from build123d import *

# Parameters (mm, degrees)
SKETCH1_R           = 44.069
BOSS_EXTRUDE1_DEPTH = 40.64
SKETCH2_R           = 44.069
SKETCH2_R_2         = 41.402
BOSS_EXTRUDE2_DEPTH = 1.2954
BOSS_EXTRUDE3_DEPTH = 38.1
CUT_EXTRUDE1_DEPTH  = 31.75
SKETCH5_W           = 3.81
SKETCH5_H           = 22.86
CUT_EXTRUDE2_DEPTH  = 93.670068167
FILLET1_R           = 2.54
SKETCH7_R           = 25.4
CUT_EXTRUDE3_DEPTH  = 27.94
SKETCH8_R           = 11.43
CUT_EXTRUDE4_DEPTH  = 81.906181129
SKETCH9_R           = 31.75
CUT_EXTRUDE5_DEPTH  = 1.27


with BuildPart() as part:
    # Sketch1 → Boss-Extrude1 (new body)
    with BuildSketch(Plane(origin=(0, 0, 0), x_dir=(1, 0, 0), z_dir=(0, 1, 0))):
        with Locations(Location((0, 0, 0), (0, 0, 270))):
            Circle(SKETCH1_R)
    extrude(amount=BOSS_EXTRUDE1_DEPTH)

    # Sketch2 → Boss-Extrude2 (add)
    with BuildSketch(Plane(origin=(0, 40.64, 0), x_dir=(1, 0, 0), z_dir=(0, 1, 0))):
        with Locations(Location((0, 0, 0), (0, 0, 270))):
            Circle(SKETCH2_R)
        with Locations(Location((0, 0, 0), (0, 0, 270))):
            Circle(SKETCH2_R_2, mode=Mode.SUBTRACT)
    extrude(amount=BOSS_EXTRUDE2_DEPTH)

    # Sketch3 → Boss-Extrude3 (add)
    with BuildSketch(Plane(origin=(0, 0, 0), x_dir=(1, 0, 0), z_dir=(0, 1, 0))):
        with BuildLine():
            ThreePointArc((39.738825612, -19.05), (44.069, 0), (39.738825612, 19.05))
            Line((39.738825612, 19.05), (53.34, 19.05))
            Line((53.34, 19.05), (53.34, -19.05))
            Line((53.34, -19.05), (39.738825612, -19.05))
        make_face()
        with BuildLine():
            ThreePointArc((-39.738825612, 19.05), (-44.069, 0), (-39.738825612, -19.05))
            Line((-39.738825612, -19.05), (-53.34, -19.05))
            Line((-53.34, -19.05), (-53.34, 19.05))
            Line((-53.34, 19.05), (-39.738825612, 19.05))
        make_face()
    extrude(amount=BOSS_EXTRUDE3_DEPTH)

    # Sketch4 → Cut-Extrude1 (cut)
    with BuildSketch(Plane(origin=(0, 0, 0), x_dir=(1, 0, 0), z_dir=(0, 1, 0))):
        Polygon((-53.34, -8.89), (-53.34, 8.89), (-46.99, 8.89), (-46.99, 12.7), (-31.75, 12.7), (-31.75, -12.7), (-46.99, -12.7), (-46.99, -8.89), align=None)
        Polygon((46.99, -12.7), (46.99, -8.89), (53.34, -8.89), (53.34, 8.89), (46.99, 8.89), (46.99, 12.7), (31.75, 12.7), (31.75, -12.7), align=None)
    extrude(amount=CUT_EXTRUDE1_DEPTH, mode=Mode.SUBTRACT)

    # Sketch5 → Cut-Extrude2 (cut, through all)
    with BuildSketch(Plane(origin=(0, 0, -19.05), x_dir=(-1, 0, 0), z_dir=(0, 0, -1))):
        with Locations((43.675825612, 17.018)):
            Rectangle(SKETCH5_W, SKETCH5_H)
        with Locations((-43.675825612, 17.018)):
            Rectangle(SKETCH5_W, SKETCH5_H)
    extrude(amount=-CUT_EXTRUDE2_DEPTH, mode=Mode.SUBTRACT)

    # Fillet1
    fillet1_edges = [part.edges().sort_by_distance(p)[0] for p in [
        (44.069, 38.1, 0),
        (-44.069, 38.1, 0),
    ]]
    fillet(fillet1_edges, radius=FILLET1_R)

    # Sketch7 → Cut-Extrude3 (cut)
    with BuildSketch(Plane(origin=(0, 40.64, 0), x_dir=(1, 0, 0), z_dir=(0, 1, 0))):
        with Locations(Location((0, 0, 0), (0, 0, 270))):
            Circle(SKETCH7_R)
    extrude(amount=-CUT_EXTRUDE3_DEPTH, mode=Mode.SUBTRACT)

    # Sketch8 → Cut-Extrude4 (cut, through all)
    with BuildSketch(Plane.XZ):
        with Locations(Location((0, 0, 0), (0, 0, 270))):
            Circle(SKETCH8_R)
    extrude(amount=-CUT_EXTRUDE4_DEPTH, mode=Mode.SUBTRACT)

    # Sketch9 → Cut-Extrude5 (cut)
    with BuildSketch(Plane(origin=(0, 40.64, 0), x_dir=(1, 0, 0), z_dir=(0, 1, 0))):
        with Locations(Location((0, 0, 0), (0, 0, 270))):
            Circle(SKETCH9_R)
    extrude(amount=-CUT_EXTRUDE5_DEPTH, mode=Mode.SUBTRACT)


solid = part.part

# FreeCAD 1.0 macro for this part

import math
import FreeCAD as App
import Part
import Sketcher
Q = App.Units.Quantity


def edges_at(feature, points):
    """Names of the edges that pass closest to the given points."""
    edges = feature.Shape.Edges
    near = lambda p: min(range(len(edges)), key=lambda i: edges[i].distToShape(Part.Vertex(*p))[0])
    return sorted({f"Edge{near(p) + 1}" for p in points})


def add_polygon(sketch, points):
    """Adds a closed chain of lines whose ends are joined by coincident constraints."""
    first, n = sketch.GeometryCount, len(points)
    for a, b in zip(points, points[1:] + points[:1]):
        sketch.addGeometry(Part.LineSegment(App.Vector(*a, 0), App.Vector(*b, 0)), False)
    for i in range(n):
        sketch.addConstraint(Sketcher.Constraint("Coincident", first + i, 2, first + (i + 1) % n, 1))

doc = App.newDocument("Part")
body = doc.addObject("PartDesign::Body", "Body")

# Sketch on XZ plane
sketch1 = doc.addObject("Sketcher::SketchObject", "Sketch")
body.addObject(sketch1)
sketch1.AttachmentSupport = (doc.XZ_Plane, [""])
sketch1.MapMode = "FlatFace"
sketch1.addGeometry(Part.Circle(App.Vector(0, 0, 0), App.Vector(0, 0, 1), 44), False)
sketch1.addConstraint([
    Sketcher.Constraint("Coincident", 0, 3, -1, 1),
    Sketcher.Constraint("Diameter", 0, Q("3.47 in")),
])
pad1 = doc.addObject("PartDesign::Pad", "Pad")
body.addObject(pad1)
pad1.Profile = sketch1
pad1.Length = Q("1.6 in")
pad1.Reversed = True

# Sketch on XZ plane
sketch2 = doc.addObject("Sketcher::SketchObject", "Sketch001")
body.addObject(sketch2)
sketch2.AttachmentSupport = (doc.XZ_Plane, [""])
sketch2.MapMode = "FlatFace"
sketch2.AttachmentOffset = App.Placement(App.Vector(0, 0, -1.6 * 25.4), App.Rotation())
sketch2.addGeometry([
    Part.Circle(App.Vector(0, 0, 0), App.Vector(0, 0, 1), 44),
    Part.Circle(App.Vector(0, 0, 0), App.Vector(0, 0, 1), 41),
], False)
sketch2.addConstraint([
    Sketcher.Constraint("Coincident", 0, 3, -1, 1),
    Sketcher.Constraint("Coincident", 1, 3, -1, 1),
    Sketcher.Constraint("Diameter", 0, Q("3.47 in")),
    Sketcher.Constraint("Diameter", 1, Q("3.26 in")),
])
pad2 = doc.addObject("PartDesign::Pad", "Pad001")
body.addObject(pad2)
pad2.Profile = sketch2
pad2.Length = Q("0.051 in")
pad2.Reversed = True

# Sketch on XZ plane
sketch3 = doc.addObject("Sketcher::SketchObject", "Sketch002")
body.addObject(sketch3)
sketch3.AttachmentSupport = (doc.XZ_Plane, [""])
sketch3.MapMode = "FlatFace"
sketch3.addGeometry([
    Part.ArcOfCircle(Part.Circle(App.Vector(0, 0, 0), App.Vector(0, 0, 1), 44), math.radians(-26), math.radians(26)),  # 0
    Part.LineSegment(App.Vector(40, 19, 0), App.Vector(53, 19, 0)),  # 1
    Part.LineSegment(App.Vector(53, 19, 0), App.Vector(53, -19, 0)),  # 2
    Part.LineSegment(App.Vector(53, -19, 0), App.Vector(40, -19, 0)),  # 3
    Part.ArcOfCircle(Part.Circle(App.Vector(0, 0, 0), App.Vector(0, 0, 1), 44), math.radians(154), math.radians(206)),  # 4
    Part.LineSegment(App.Vector(-40, -19, 0), App.Vector(-53, -19, 0)),  # 5
    Part.LineSegment(App.Vector(-53, -19, 0), App.Vector(-53, 19, 0)),  # 6
    Part.LineSegment(App.Vector(-53, 19, 0), App.Vector(-40, 19, 0)),  # 7
], False)
sketch3.addConstraint([
    Sketcher.Constraint("Coincident", 0, 2, 1, 1),
    Sketcher.Constraint("Coincident", 1, 2, 2, 1),
    Sketcher.Constraint("Coincident", 2, 2, 3, 1),
    Sketcher.Constraint("Coincident", 3, 2, 0, 1),
    Sketcher.Constraint("Coincident", 4, 2, 5, 1),
    Sketcher.Constraint("Coincident", 5, 2, 6, 1),
    Sketcher.Constraint("Coincident", 6, 2, 7, 1),
    Sketcher.Constraint("Coincident", 7, 2, 4, 1),
    Sketcher.Constraint("Horizontal", 1),
    Sketcher.Constraint("Vertical", 2),
    Sketcher.Constraint("Horizontal", 3),
    Sketcher.Constraint("Horizontal", 5),
    Sketcher.Constraint("Vertical", 6),
    Sketcher.Constraint("Horizontal", 7),
    Sketcher.Constraint("Coincident", 0, 3, -1, 1),
    Sketcher.Constraint("Coincident", 4, 3, -1, 1),
    Sketcher.Constraint("Equal", 0, 4),
    Sketcher.Constraint("Symmetric", 1, 2, 5, 2, -1, 1),
    Sketcher.Constraint("Horizontal", 3, 2, 4, 2),
    Sketcher.Constraint("Horizontal", 1, 2, 6, 2),
    Sketcher.Constraint("DistanceY", 2, 2, 2, 1, Q("1.5 in")),
    Sketcher.Constraint("Radius", 0, Q("1.735 in")),
    Sketcher.Constraint("DistanceX", -1, 1, 1, 2, Q("2.1 in")),
])
pad3 = doc.addObject("PartDesign::Pad", "Pad002")
body.addObject(pad3)
pad3.Profile = sketch3
pad3.Length = Q("1.5 in")
pad3.Reversed = True

# Sketch on XZ plane
sketch4 = doc.addObject("Sketcher::SketchObject", "Sketch003")
body.addObject(sketch4)
sketch4.AttachmentSupport = (doc.XZ_Plane, [""])
sketch4.MapMode = "FlatFace"
add_polygon(sketch4, [(-53.3, -8.9), (-53.3, 8.9), (-47, 8.9), (-47, 12.7), (-31.8, 12.7), (-31.8, -12.7), (-47, -12.7), (-47, -8.9)])  # lines 0-7
add_polygon(sketch4, [(47, 12.7), (47, 8.9), (53.3, 8.9), (53.3, -8.9), (47, -8.9), (47, -12.7), (31.8, -12.7), (31.8, 12.7)])  # lines 8-15
sketch4.addConstraint([
    Sketcher.Constraint("Vertical", 0),
    Sketcher.Constraint("Horizontal", 1),
    Sketcher.Constraint("Vertical", 2),
    Sketcher.Constraint("Horizontal", 3),
    Sketcher.Constraint("Vertical", 4),
    Sketcher.Constraint("Horizontal", 5),
    Sketcher.Constraint("Vertical", 6),
    Sketcher.Constraint("Horizontal", 7),
    Sketcher.Constraint("Vertical", 8),
    Sketcher.Constraint("Horizontal", 9),
    Sketcher.Constraint("Vertical", 10),
    Sketcher.Constraint("Horizontal", 11),
    Sketcher.Constraint("Vertical", 12),
    Sketcher.Constraint("Horizontal", 13),
    Sketcher.Constraint("Vertical", 14),
    Sketcher.Constraint("Horizontal", 15),
    Sketcher.Constraint("Symmetric", 6, 2, 8, 2, -1, 1),
    Sketcher.Constraint("Symmetric", 0, 2, 10, 2, -1, 1),
    Sketcher.Constraint("Symmetric", 2, 2, 12, 2, -1, 1),
    Sketcher.Constraint("Symmetric", 4, 2, 14, 2, -1, 1),
    Sketcher.Constraint("Symmetric", 1, 2, 8, 2, -2),
    Sketcher.Constraint("Horizontal", 5, 2, 12, 2),
    Sketcher.Constraint("DistanceY", 4, 2, 4, 1, Q("1 in")),
    Sketcher.Constraint("DistanceX", 3, 1, 3, 2, Q("0.6 in")),
    Sketcher.Constraint("DistanceY", 0, 1, 0, 2, Q("0.7 in")),
    Sketcher.Constraint("DistanceX", 1, 1, 1, 2, Q("0.25 in")),
    Sketcher.Constraint("DistanceX", 0, 2, -1, 1, Q("2.1 in")),
])
pocket1 = doc.addObject("PartDesign::Pocket", "Pocket")
body.addObject(pocket1)
pocket1.Profile = sketch4
pocket1.Length = Q("1.25 in")

# Sketch on XY plane
sketch5 = doc.addObject("Sketcher::SketchObject", "Sketch004")
body.addObject(sketch5)
sketch5.AttachmentSupport = (doc.XY_Plane, [""])
sketch5.MapMode = "FlatFace"
sketch5.AttachmentOffset = App.Placement(App.Vector(0, 0, -0.75 * 25.4), App.Rotation())
add_polygon(sketch5, [(-41.8, 28.4), (-41.8, 5.6), (-45.6, 5.6), (-45.6, 28.4)])  # lines 0-3
add_polygon(sketch5, [(45.6, 28.4), (45.6, 5.6), (41.8, 5.6), (41.8, 28.4)])  # lines 4-7
sketch5.addConstraint([
    Sketcher.Constraint("Vertical", 0),
    Sketcher.Constraint("Horizontal", 1),
    Sketcher.Constraint("Vertical", 2),
    Sketcher.Constraint("Horizontal", 3),
    Sketcher.Constraint("Vertical", 4),
    Sketcher.Constraint("Horizontal", 5),
    Sketcher.Constraint("Vertical", 6),
    Sketcher.Constraint("Horizontal", 7),
    Sketcher.Constraint("Symmetric", 1, 2, 4, 2, -2),
    Sketcher.Constraint("Symmetric", 3, 2, 6, 2, -2),
    Sketcher.Constraint("DistanceY", 0, 2, 0, 1, Q("0.9 in")),
    Sketcher.Constraint("DistanceX", 1, 2, 1, 1, Q("0.15 in")),
    Sketcher.Constraint("DistanceY", -1, 1, 0, 2, Q("0.22 in")),
    Sketcher.Constraint("DistanceX", 0, 2, 4, 2, Q("87.351651 mm")),
])
pocket2 = doc.addObject("PartDesign::Pocket", "Pocket001")
body.addObject(pocket2)
pocket2.Profile = sketch5
pocket2.Type = "ThroughAll"
pocket2.Reversed = True
doc.recompute()

fillet = doc.addObject("PartDesign::Fillet", "Fillet")
body.addObject(fillet)
fillet.Base = (pocket2, edges_at(pocket2, [(44.069, 38.1, 0), (-44.069, 38.1, 0)]))
fillet.Radius = Q("0.1 in")

# Sketch on XZ plane
sketch6 = doc.addObject("Sketcher::SketchObject", "Sketch005")
body.addObject(sketch6)
sketch6.AttachmentSupport = (doc.XZ_Plane, [""])
sketch6.MapMode = "FlatFace"
sketch6.AttachmentOffset = App.Placement(App.Vector(0, 0, -1.6 * 25.4), App.Rotation())
sketch6.addGeometry(Part.Circle(App.Vector(0, 0, 0), App.Vector(0, 0, 1), 25), False)
sketch6.addConstraint([
    Sketcher.Constraint("Coincident", 0, 3, -1, 1),
    Sketcher.Constraint("Diameter", 0, Q("2 in")),
])
pocket3 = doc.addObject("PartDesign::Pocket", "Pocket002")
body.addObject(pocket3)
pocket3.Profile = sketch6
pocket3.Length = Q("1.1 in")
pocket3.Reversed = True

# Sketch on XZ plane
sketch7 = doc.addObject("Sketcher::SketchObject", "Sketch006")
body.addObject(sketch7)
sketch7.AttachmentSupport = (doc.XZ_Plane, [""])
sketch7.MapMode = "FlatFace"
sketch7.addGeometry(Part.Circle(App.Vector(0, 0, 0), App.Vector(0, 0, 1), 11), False)
sketch7.addConstraint([
    Sketcher.Constraint("Coincident", 0, 3, -1, 1),
    Sketcher.Constraint("Diameter", 0, Q("0.9 in")),
])
pocket4 = doc.addObject("PartDesign::Pocket", "Pocket003")
body.addObject(pocket4)
pocket4.Profile = sketch7
pocket4.Type = "ThroughAll"

# Sketch on XZ plane
sketch8 = doc.addObject("Sketcher::SketchObject", "Sketch007")
body.addObject(sketch8)
sketch8.AttachmentSupport = (doc.XZ_Plane, [""])
sketch8.MapMode = "FlatFace"
sketch8.AttachmentOffset = App.Placement(App.Vector(0, 0, -1.6 * 25.4), App.Rotation())
sketch8.addGeometry(Part.Circle(App.Vector(0, 0, 0), App.Vector(0, 0, 1), 32), False)
sketch8.addConstraint([
    Sketcher.Constraint("Coincident", 0, 3, -1, 1),
    Sketcher.Constraint("Diameter", 0, Q("2.5 in")),
])
pocket5 = doc.addObject("PartDesign::Pocket", "Pocket004")
body.addObject(pocket5)
pocket5.Profile = sketch8
pocket5.Length = Q("0.05 in")
pocket5.Reversed = True

doc.recompute()
